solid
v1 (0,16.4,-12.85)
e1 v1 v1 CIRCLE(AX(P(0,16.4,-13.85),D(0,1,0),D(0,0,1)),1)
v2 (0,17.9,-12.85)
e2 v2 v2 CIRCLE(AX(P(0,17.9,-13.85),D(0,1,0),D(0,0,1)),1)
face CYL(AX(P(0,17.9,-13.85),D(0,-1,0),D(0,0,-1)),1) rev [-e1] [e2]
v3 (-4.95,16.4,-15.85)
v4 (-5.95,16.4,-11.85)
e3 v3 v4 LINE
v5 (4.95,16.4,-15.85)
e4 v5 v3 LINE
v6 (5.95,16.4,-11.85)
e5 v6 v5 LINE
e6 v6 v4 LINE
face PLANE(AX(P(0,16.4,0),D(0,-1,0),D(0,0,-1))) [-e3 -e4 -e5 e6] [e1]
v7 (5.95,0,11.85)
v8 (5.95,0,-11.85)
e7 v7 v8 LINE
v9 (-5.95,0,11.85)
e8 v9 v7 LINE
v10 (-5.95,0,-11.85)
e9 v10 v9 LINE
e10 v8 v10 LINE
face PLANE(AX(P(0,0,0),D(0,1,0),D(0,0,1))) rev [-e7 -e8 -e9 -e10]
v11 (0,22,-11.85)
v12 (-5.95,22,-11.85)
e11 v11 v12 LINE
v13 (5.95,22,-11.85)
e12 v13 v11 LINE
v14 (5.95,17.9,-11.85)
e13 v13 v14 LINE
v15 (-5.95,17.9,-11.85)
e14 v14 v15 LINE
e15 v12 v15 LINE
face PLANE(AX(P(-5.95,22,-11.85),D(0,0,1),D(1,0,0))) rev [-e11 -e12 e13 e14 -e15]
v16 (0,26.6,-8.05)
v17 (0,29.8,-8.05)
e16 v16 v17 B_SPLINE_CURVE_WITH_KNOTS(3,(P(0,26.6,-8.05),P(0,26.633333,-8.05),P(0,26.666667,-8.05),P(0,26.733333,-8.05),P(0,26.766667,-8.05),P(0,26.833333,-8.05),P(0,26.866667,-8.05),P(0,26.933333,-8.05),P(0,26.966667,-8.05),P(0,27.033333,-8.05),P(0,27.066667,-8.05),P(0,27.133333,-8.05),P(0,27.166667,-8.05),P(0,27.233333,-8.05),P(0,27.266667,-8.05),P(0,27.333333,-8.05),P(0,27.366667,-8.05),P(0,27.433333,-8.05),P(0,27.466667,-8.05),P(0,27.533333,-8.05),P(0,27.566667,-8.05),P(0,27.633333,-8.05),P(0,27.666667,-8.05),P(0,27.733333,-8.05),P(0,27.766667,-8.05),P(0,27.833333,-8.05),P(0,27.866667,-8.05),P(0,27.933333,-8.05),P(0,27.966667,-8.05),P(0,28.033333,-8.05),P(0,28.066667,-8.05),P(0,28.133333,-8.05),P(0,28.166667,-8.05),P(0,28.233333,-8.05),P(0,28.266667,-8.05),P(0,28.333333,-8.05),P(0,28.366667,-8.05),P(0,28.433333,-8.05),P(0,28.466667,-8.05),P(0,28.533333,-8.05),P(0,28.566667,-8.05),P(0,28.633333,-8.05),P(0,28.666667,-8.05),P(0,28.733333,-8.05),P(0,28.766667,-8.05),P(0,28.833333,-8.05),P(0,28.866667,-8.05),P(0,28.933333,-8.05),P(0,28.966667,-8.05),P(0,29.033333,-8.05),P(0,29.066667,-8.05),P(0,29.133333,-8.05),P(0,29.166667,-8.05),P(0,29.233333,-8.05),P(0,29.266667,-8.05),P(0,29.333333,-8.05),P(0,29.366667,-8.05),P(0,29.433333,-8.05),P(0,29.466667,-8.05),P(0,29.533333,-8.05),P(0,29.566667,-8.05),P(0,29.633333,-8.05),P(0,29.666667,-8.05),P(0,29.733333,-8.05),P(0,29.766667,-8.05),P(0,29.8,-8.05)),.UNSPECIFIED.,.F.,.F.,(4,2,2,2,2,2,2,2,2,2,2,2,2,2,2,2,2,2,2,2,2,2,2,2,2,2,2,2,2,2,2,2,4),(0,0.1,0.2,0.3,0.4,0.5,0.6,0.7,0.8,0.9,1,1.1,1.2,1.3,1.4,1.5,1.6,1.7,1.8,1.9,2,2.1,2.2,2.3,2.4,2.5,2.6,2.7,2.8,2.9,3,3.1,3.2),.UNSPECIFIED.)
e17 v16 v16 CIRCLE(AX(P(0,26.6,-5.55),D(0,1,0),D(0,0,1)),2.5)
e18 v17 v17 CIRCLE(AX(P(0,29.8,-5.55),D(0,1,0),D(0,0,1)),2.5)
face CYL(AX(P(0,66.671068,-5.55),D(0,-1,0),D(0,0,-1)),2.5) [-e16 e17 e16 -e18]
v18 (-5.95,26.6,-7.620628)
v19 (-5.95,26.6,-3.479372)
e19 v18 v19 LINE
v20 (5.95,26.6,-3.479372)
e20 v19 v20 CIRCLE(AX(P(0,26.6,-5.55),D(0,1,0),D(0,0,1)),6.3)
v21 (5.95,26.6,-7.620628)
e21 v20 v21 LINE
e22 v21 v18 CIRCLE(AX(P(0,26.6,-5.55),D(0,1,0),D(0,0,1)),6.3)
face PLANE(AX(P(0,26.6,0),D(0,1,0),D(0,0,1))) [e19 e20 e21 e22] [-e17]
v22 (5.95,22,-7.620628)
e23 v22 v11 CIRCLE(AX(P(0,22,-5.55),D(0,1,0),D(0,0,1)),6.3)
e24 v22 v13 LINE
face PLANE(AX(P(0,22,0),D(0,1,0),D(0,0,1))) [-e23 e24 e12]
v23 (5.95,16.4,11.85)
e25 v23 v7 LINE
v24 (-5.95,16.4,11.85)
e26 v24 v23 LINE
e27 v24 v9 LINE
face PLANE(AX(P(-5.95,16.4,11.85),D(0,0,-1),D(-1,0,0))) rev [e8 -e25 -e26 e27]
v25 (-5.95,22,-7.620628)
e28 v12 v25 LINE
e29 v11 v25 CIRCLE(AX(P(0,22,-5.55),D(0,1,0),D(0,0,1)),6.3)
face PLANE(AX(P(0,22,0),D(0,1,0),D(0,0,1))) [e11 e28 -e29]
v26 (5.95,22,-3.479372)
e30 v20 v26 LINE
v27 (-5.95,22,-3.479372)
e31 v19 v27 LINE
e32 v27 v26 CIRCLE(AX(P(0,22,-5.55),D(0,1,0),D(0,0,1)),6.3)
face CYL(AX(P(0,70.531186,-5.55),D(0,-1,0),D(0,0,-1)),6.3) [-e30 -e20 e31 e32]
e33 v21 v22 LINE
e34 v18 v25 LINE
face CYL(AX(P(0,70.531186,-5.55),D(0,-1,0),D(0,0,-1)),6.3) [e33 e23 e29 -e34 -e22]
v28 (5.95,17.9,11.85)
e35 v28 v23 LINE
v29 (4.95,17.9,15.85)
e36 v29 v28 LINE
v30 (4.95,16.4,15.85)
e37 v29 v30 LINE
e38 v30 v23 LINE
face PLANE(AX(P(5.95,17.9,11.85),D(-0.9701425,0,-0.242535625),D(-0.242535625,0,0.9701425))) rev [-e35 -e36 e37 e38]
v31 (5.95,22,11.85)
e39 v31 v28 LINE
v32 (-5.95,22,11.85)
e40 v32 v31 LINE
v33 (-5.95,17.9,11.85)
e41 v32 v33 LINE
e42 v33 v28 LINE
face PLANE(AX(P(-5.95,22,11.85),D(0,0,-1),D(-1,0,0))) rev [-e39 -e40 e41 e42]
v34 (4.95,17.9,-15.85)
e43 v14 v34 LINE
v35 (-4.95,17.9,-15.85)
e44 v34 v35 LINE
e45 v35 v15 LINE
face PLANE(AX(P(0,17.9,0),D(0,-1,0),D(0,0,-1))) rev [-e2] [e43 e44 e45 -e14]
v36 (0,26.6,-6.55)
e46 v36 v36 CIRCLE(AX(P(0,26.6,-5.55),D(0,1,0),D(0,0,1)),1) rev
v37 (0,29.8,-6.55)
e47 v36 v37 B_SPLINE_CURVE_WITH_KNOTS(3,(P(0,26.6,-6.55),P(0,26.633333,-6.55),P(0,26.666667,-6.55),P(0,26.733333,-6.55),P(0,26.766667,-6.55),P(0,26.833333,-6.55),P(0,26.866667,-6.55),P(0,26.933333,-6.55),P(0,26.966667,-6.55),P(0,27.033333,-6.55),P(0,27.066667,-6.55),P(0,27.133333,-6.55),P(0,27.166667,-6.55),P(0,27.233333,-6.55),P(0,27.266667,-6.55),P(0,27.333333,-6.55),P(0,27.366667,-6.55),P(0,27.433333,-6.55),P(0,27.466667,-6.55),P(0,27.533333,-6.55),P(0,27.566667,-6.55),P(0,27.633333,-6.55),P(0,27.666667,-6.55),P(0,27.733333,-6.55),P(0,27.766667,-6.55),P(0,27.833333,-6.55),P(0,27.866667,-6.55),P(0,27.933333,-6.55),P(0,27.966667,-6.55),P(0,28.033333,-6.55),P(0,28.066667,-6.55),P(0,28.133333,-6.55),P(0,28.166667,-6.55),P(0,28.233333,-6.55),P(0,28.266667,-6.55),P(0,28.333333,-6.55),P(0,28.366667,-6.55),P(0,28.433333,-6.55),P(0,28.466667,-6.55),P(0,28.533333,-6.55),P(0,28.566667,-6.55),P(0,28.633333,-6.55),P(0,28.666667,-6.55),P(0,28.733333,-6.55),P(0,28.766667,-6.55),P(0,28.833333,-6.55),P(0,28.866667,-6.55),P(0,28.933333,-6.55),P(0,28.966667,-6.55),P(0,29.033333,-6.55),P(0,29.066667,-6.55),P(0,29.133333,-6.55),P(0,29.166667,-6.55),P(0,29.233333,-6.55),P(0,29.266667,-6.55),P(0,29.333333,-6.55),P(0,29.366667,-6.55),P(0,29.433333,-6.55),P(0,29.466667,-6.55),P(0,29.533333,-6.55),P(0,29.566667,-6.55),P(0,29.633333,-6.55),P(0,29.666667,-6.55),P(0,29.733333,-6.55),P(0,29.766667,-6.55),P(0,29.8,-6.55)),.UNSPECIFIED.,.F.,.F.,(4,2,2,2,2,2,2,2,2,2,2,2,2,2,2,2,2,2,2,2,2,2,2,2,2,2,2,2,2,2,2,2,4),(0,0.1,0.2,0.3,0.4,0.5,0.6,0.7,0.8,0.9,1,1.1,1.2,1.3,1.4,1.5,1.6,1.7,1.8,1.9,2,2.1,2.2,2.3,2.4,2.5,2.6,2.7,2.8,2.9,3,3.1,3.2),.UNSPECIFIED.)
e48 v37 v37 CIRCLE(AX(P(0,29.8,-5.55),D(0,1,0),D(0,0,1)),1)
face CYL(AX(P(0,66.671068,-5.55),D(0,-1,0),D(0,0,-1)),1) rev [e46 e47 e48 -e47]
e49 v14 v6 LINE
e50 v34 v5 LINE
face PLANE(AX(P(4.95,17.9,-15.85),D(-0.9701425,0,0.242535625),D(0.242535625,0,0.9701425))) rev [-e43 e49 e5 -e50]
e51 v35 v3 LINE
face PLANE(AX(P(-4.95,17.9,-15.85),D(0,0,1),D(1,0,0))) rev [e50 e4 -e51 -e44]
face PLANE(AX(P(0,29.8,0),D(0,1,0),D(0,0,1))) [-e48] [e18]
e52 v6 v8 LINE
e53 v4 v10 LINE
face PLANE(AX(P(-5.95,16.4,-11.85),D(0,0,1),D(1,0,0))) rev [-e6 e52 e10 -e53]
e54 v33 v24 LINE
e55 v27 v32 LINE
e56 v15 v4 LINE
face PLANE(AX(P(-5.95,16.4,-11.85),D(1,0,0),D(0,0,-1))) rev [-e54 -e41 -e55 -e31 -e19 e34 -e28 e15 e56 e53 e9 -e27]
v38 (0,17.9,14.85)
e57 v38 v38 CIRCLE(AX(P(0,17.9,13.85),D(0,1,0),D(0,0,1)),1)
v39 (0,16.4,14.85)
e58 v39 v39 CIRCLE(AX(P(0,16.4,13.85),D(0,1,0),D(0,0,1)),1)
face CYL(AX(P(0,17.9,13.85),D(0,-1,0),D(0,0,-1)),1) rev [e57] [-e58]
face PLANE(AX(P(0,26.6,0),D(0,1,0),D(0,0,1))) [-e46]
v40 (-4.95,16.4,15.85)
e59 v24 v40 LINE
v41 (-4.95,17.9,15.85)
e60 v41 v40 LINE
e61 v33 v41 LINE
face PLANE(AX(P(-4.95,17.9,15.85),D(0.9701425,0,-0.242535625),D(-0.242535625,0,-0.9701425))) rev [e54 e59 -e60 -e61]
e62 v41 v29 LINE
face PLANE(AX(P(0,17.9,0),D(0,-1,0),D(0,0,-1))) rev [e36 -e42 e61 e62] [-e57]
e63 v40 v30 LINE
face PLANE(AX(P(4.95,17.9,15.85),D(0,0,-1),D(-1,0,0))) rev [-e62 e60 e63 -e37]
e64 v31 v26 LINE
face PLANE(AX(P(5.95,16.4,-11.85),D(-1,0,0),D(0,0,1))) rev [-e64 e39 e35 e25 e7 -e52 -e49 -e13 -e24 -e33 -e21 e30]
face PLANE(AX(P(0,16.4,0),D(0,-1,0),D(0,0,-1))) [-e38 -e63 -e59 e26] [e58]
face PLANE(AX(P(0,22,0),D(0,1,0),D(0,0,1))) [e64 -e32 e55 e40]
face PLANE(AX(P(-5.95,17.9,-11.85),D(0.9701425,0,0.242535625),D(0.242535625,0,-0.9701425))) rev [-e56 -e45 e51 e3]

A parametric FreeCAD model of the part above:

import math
import FreeCAD as App
import Part
import Sketcher

V = App.Vector

doc = App.newDocument("Part")
body = doc.addObject("PartDesign::Body", "Body")

# Sketch on XZ plane
sketch1 = body.newObject("Sketcher::SketchObject", "Sketch")
sketch1.AttachmentSupport = (doc.getObject("XZ_Plane"), [""])
sketch1.MapMode = "FlatFace"
sketch1.addGeometry(Part.LineSegment(V(-6, -12, 0), V(-6, 12, 0)), False)
sketch1.addGeometry(Part.LineSegment(V(-6, 12, 0), V(6, 12, 0)), False)
sketch1.addGeometry(Part.LineSegment(V(6, 12, 0), V(6, -12, 0)), False)
sketch1.addGeometry(Part.LineSegment(V(6, -12, 0), V(-6, -12, 0)), False)
sketch1.addConstraint(Sketcher.Constraint("Coincident", 0, 2, 1, 1))
sketch1.addConstraint(Sketcher.Constraint("Coincident", 1, 2, 2, 1))
sketch1.addConstraint(Sketcher.Constraint("Coincident", 2, 2, 3, 1))
sketch1.addConstraint(Sketcher.Constraint("Coincident", 3, 2, 0, 1))
sketch1.addConstraint(Sketcher.Constraint("Vertical", 0))
sketch1.addConstraint(Sketcher.Constraint("Horizontal", 1))
sketch1.addConstraint(Sketcher.Constraint("Vertical", 2))
sketch1.addConstraint(Sketcher.Constraint("Horizontal", 3))
sketch1.addConstraint(Sketcher.Constraint("Symmetric", 0, 2, 2, 2, -1, 1))
sketch1.addConstraint(Sketcher.Constraint("DistanceX", 1, 1, 1, 2, 11.9))
sketch1.addConstraint(Sketcher.Constraint("DistanceY", 0, 1, 0, 2, 23.7))
pad1 = body.newObject("PartDesign::Pad", "Pad")
pad1.Profile = sketch1
pad1.Length = 16.4
pad1.Reversed = True

# Sketch on XZ plane
sketch2 = body.newObject("Sketcher::SketchObject", "Sketch001")
sketch2.AttachmentSupport = (doc.getObject("XZ_Plane"), [""])
sketch2.MapMode = "FlatFace"
sketch2.AttachmentOffset = App.Placement(V(0, 0, -16.4), App.Rotation())
sketch2.addGeometry(Part.LineSegment(V(-5, -15.8, 0), V(-6, -11.8, 0)), False)
sketch2.addGeometry(Part.LineSegment(V(-6, -11.8, 0), V(-6, 11.8, 0)), False)
sketch2.addGeometry(Part.LineSegment(V(-6, 11.8, 0), V(-5, 15.8, 0)), False)
sketch2.addGeometry(Part.LineSegment(V(-5, 15.8, 0), V(5, 15.8, 0)), False)
sketch2.addGeometry(Part.LineSegment(V(5, 15.8, 0), V(6, 11.8, 0)), False)
sketch2.addGeometry(Part.LineSegment(V(6, 11.8, 0), V(6, -11.8, 0)), False)
sketch2.addGeometry(Part.LineSegment(V(6, -11.8, 0), V(5, -15.8, 0)), False)
sketch2.addGeometry(Part.LineSegment(V(5, -15.8, 0), V(-5, -15.8, 0)), False)
sketch2.addGeometry(Part.Circle(V(0, 13.8, 0), V(0, 0, 1), 1), False)
sketch2.addGeometry(Part.Circle(V(0, -13.8, 0), V(0, 0, 1), 1), False)
sketch2.addConstraint(Sketcher.Constraint("Coincident", 0, 2, 1, 1))
sketch2.addConstraint(Sketcher.Constraint("Coincident", 1, 2, 2, 1))
sketch2.addConstraint(Sketcher.Constraint("Coincident", 2, 2, 3, 1))
sketch2.addConstraint(Sketcher.Constraint("Coincident", 3, 2, 4, 1))
sketch2.addConstraint(Sketcher.Constraint("Coincident", 4, 2, 5, 1))
sketch2.addConstraint(Sketcher.Constraint("Coincident", 5, 2, 6, 1))
sketch2.addConstraint(Sketcher.Constraint("Coincident", 6, 2, 7, 1))
sketch2.addConstraint(Sketcher.Constraint("Coincident", 7, 2, 0, 1))
sketch2.addConstraint(Sketcher.Constraint("Vertical", 1))
sketch2.addConstraint(Sketcher.Constraint("Horizontal", 3))
sketch2.addConstraint(Sketcher.Constraint("Vertical", 5))
sketch2.addConstraint(Sketcher.Constraint("Horizontal", 7))
sketch2.addConstraint(Sketcher.Constraint("Equal", 8, 9))
sketch2.addConstraint(Sketcher.Constraint("Symmetric", 8, 3, 9, 3, -1, 1))
sketch2.addConstraint(Sketcher.Constraint("Symmetric", 0, 2, 4, 2, -1, 1))
sketch2.addConstraint(Sketcher.Constraint("Symmetric", 2, 2, 6, 2, -1, 1))
sketch2.addConstraint(Sketcher.Constraint("PointOnObject", 8, 3, -2))
sketch2.addConstraint(Sketcher.Constraint("Parallel", 0, 4))
sketch2.addConstraint(Sketcher.Constraint("Parallel", 2, 6))
sketch2.addConstraint(Sketcher.Constraint("Horizontal", 1, 2, 4, 2))
sketch2.addConstraint(Sketcher.Constraint("Vertical", 3, 2, 6, 2))
sketch2.addConstraint(Sketcher.Constraint("Diameter", 8, 2.0))
sketch2.addConstraint(Sketcher.Constraint("DistanceX", 3, 1, 3, 2, 9.9))
sketch2.addConstraint(Sketcher.Constraint("DistanceY", 1, 1, 1, 2, 23.7))
sketch2.addConstraint(Sketcher.Constraint("DistanceY", 9, 3, 0, 2, 2.0))
sketch2.addConstraint(Sketcher.Constraint("DistanceX", 1, 2, 2, 2, 1.0))
sketch2.addConstraint(Sketcher.Constraint("DistanceY", 1, 2, 2, 2, 4.0))
pad2 = body.newObject("PartDesign::Pad", "Pad001")
pad2.Profile = sketch2
pad2.Length = 1.5
pad2.Reversed = True

# Sketch on XZ plane
sketch3 = body.newObject("Sketcher::SketchObject", "Sketch002")
sketch3.AttachmentSupport = (doc.getObject("XZ_Plane"), [""])
sketch3.MapMode = "FlatFace"
sketch3.AttachmentOffset = App.Placement(V(0, 0, -17.9), App.Rotation())
sketch3.addGeometry(Part.LineSegment(V(-6, -12, 0), V(-6, 12, 0)), False)
sketch3.addGeometry(Part.LineSegment(V(-6, 12, 0), V(6, 12, 0)), False)
sketch3.addGeometry(Part.LineSegment(V(6, 12, 0), V(6, -12, 0)), False)
sketch3.addGeometry(Part.LineSegment(V(6, -12, 0), V(-6, -12, 0)), False)
sketch3.addConstraint(Sketcher.Constraint("Coincident", 0, 2, 1, 1))
sketch3.addConstraint(Sketcher.Constraint("Coincident", 1, 2, 2, 1))
sketch3.addConstraint(Sketcher.Constraint("Coincident", 2, 2, 3, 1))
sketch3.addConstraint(Sketcher.Constraint("Coincident", 3, 2, 0, 1))
sketch3.addConstraint(Sketcher.Constraint("Vertical", 0))
sketch3.addConstraint(Sketcher.Constraint("Horizontal", 1))
sketch3.addConstraint(Sketcher.Constraint("Vertical", 2))
sketch3.addConstraint(Sketcher.Constraint("Horizontal", 3))
sketch3.addConstraint(Sketcher.Constraint("Symmetric", 0, 2, 2, 2, -1, 1))
sketch3.addConstraint(Sketcher.Constraint("DistanceX", 1, 1, 1, 2, 11.9))
sketch3.addConstraint(Sketcher.Constraint("DistanceY", 0, 1, 0, 2, 23.7))
pad3 = body.newObject("PartDesign::Pad", "Pad002")
pad3.Profile = sketch3
pad3.Length = 4.1
pad3.Reversed = True

# Sketch on XZ plane
sketch4 = body.newObject("Sketcher::SketchObject", "Sketch003")
sketch4.AttachmentSupport = (doc.getObject("XZ_Plane"), [""])
sketch4.MapMode = "FlatFace"
sketch4.AttachmentOffset = App.Placement(V(0, 0, -22), App.Rotation())
sketch4.addGeometry(Part.LineSegment(V(-6, -7.6, 0), V(-6, -3.5, 0)), False)
sketch4.addGeometry(Part.ArcOfCircle(Part.Circle(V(0, -5.5, 0), V(0, 0, 1), 6.3), math.radians(19), math.radians(161)), False)
sketch4.addGeometry(Part.LineSegment(V(6, -3.5, 0), V(6, -7.6, 0)), False)
sketch4.addGeometry(Part.ArcOfCircle(Part.Circle(V(0, -5.5, 0), V(0, 0, 1), 6.3), math.radians(-161), math.radians(-19)), False)
sketch4.addConstraint(Sketcher.Constraint("Coincident", 0, 2, 1, 2))
sketch4.addConstraint(Sketcher.Constraint("Coincident", 1, 1, 2, 1))
sketch4.addConstraint(Sketcher.Constraint("Coincident", 2, 2, 3, 2))
sketch4.addConstraint(Sketcher.Constraint("Coincident", 3, 1, 0, 1))
sketch4.addConstraint(Sketcher.Constraint("Vertical", 0))
sketch4.addConstraint(Sketcher.Constraint("Vertical", 2))
sketch4.addConstraint(Sketcher.Constraint("Coincident", 3, 3, 1, 3))
sketch4.addConstraint(Sketcher.Constraint("Equal", 1, 3))
sketch4.addConstraint(Sketcher.Constraint("Symmetric", 0, 2, 1, 1, -2))
sketch4.addConstraint(Sketcher.Constraint("Radius", 1, 6.3))
sketch4.addConstraint(Sketcher.Constraint("DistanceX", 0, 2, 1, 1, 11.9))
sketch4.addConstraint(Sketcher.Constraint("DistanceY", 1, 3, -1, 1, 5.55))
pad4 = body.newObject("PartDesign::Pad", "Pad003")
pad4.Profile = sketch4
pad4.Length = 4.6
pad4.Reversed = True

# Sketch on XZ plane
sketch5 = body.newObject("Sketcher::SketchObject", "Sketch004")
sketch5.AttachmentSupport = (doc.getObject("XZ_Plane"), [""])
sketch5.MapMode = "FlatFace"
sketch5.AttachmentOffset = App.Placement(V(0, 0, -26.6), App.Rotation())
sketch5.addGeometry(Part.Circle(V(0, -5.5, 0), V(0, 0, 1), 2.5), False)
sketch5.addGeometry(Part.Circle(V(0, -5.5, 0), V(0, 0, 1), 1), False)
sketch5.addConstraint(Sketcher.Constraint("Coincident", 1, 3, 0, 3))
sketch5.addConstraint(Sketcher.Constraint("PointOnObject", 0, 3, -2))
sketch5.addConstraint(Sketcher.Constraint("Diameter", 0, 5.0))
sketch5.addConstraint(Sketcher.Constraint("Diameter", 1, 2.0))
sketch5.addConstraint(Sketcher.Constraint("DistanceY", 0, 3, -1, 1, 5.55))
pad5 = body.newObject("PartDesign::Pad", "Pad004")
pad5.Profile = sketch5
pad5.Length = 3.2
pad5.Reversed = True

doc.recompute()
